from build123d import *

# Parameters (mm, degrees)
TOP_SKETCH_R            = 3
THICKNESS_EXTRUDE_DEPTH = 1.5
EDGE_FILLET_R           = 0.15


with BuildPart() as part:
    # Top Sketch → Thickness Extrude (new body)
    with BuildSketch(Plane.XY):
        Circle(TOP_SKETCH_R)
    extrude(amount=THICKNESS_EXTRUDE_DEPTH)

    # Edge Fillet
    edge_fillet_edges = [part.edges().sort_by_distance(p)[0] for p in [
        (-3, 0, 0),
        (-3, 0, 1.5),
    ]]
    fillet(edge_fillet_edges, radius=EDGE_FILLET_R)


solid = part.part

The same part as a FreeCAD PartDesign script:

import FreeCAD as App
import Part
import Sketcher
Q = App.Units.Quantity


def edges_at(feature, points):
    """Names of the edges that pass closest to the given points."""
    edges = feature.Shape.Edges
    near = lambda p: min(range(len(edges)), key=lambda i: edges[i].distToShape(Part.Vertex(*p))[0])
    return sorted({f"Edge{near(p) + 1}" for p in points})

doc = App.newDocument("Part")
params = doc.addObject("Spreadsheet::Sheet", "Params")
for row, (alias, value) in enumerate([
    ("sketch1_diameter", "6 mm"),
    ("pad1_length", "1.5 mm"),
    ("fillet_radius", "0.15 mm"),
], start=1):
    params.set(f"A{row}", alias)
    params.set(f"B{row}", "=" + value)
    params.setAlias(f"B{row}", alias)

body = doc.addObject("PartDesign::Body", "Body")

# Sketch on XY plane
sketch1 = doc.addObject("Sketcher::SketchObject", "Sketch")
body.addObject(sketch1)
sketch1.AttachmentSupport = (doc.XY_Plane, [""])
sketch1.MapMode = "FlatFace"
sketch1.addGeometry(Part.Circle(App.Vector(0, 0, 0), App.Vector(0, 0, 1), 3), False)
sketch1.addConstraint(Sketcher.Constraint("Coincident", 0, 3, -1, 1))
sketch1.addConstraint(Sketcher.Constraint("Diameter", 0, Q("6 mm")))
sketch1.setExpression("Constraints[1]", "Params.sketch1_diameter")
pad1 = doc.addObject("PartDesign::Pad", "Pad")
body.addObject(pad1)
pad1.Profile = sketch1
pad1.setExpression("Length", "Params.pad1_length")
doc.recompute()

fillet = doc.addObject("PartDesign::Fillet", "Fillet")
body.addObject(fillet)
fillet.Base = (pad1, edges_at(pad1, [(-3, 0, 0), (-3, 0, 1.5)]))
fillet.setExpression("Radius", "Params.fillet_radius")

doc.recompute()
